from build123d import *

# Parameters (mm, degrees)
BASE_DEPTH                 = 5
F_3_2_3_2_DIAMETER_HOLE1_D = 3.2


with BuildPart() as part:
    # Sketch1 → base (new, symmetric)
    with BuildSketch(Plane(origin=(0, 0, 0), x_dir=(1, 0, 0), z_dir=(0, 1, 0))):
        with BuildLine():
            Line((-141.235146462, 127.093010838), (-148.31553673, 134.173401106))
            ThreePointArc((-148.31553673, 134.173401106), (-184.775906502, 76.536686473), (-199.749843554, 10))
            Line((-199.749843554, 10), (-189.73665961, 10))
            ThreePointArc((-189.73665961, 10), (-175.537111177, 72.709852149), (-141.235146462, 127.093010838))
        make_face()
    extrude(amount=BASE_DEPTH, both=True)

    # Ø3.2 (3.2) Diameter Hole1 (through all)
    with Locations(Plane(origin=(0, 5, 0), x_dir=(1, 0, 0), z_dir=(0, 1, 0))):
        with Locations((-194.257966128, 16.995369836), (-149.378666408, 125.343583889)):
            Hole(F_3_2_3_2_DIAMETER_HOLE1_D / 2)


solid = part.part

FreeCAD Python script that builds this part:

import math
import FreeCAD as App
import Part
import Sketcher
Q = App.Units.Quantity

doc = App.newDocument("Part")
body = doc.addObject("PartDesign::Body", "Body")

# Sketch on XZ plane
sketch1 = doc.addObject("Sketcher::SketchObject", "Sketch")
body.addObject(sketch1)
sketch1.AttachmentSupport = (doc.XZ_Plane, [""])
sketch1.MapMode = "FlatFace"
sketch1.addGeometry(Part.LineSegment(App.Vector(-141.235146, -127.093011, 0), App.Vector(-148.315537, -134.173401, 0)), False)
sketch1.addGeometry(Part.ArcOfCircle(Part.Circle(App.Vector(0, 0, 0), App.Vector(0, 0, 1), 200), math.radians(-177.134016), math.radians(-137.865984)), False)
sketch1.addGeometry(Part.LineSegment(App.Vector(-199.749844, -10, 0), App.Vector(-189.73666, -10, 0)), False)
sketch1.addGeometry(Part.ArcOfCircle(Part.Circle(App.Vector(0, 0, 0), App.Vector(0, 0, 1), 190), math.radians(-176.983039), math.radians(-138.016961)), False)
sketch1.addConstraint(Sketcher.Constraint("Coincident", 0, 2, 1, 2))
sketch1.addConstraint(Sketcher.Constraint("Coincident", 1, 1, 2, 1))
sketch1.addConstraint(Sketcher.Constraint("Coincident", 2, 2, 3, 1))
sketch1.addConstraint(Sketcher.Constraint("Coincident", 3, 2, 0, 1))
sketch1.addConstraint(Sketcher.Constraint("Horizontal", 2))
sketch1.addConstraint(Sketcher.Constraint("Coincident", 1, 3, -1, 1))
sketch1.addConstraint(Sketcher.Constraint("Coincident", 3, 3, -1, 1))
sketch1.addConstraint(Sketcher.Constraint("Radius", 1, 200.0))
sketch1.addConstraint(Sketcher.Constraint("Radius", 3, 190.0))
sketch1.addConstraint(Sketcher.Constraint("Angle", 0, Q("-135 deg")))
sketch1.addConstraint(Sketcher.Constraint("DistanceY", 1, 1, -1, 1, 10.0))
sketch1.addConstraint(Sketcher.Constraint("DistanceY", 0, 2, -1, 1, 134.173401))
pad1 = doc.addObject("PartDesign::Pad", "Pad")
body.addObject(pad1)
pad1.Profile = sketch1
pad1.Length = 10
pad1.Midplane = True

# Sketch on XZ plane
sketch2 = doc.addObject("Sketcher::SketchObject", "Sketch001")
body.addObject(sketch2)
sketch2.AttachmentSupport = (doc.XZ_Plane, [""])
sketch2.MapMode = "FlatFace"
sketch2.AttachmentOffset = App.Placement(App.Vector(0, 0, -5), App.Rotation())
sketch2.addGeometry(Part.Circle(App.Vector(-194.257966, -16.99537, 0), App.Vector(0, 0, 1), 1.6), False)
sketch2.addGeometry(Part.Circle(App.Vector(-149.378666, -125.343584, 0), App.Vector(0, 0, 1), 1.6), False)
sketch2.addConstraint(Sketcher.Constraint("Equal", 0, 1))
sketch2.addConstraint(Sketcher.Constraint("Diameter", 0, 3.2))
sketch2.addConstraint(Sketcher.Constraint("DistanceX", 0, 3, 1, 3, 44.8793))
sketch2.addConstraint(Sketcher.Constraint("DistanceY", 0, 3, -1, 1, 16.99537))
sketch2.addConstraint(Sketcher.Constraint("DistanceX", 0, 3, -1, 1, 194.257966))
sketch2.addConstraint(Sketcher.Constraint("DistanceY", 1, 3, -1, 1, 125.343584))
doc.recompute()
hole = doc.addObject("PartDesign::Hole", "Hole")
body.addObject(hole)
hole.Profile = sketch2
hole.ThreadType = "None"
hole.Diameter = 3.2
hole.DepthType = "ThroughAll"
hole.Reversed = True

doc.recompute()
